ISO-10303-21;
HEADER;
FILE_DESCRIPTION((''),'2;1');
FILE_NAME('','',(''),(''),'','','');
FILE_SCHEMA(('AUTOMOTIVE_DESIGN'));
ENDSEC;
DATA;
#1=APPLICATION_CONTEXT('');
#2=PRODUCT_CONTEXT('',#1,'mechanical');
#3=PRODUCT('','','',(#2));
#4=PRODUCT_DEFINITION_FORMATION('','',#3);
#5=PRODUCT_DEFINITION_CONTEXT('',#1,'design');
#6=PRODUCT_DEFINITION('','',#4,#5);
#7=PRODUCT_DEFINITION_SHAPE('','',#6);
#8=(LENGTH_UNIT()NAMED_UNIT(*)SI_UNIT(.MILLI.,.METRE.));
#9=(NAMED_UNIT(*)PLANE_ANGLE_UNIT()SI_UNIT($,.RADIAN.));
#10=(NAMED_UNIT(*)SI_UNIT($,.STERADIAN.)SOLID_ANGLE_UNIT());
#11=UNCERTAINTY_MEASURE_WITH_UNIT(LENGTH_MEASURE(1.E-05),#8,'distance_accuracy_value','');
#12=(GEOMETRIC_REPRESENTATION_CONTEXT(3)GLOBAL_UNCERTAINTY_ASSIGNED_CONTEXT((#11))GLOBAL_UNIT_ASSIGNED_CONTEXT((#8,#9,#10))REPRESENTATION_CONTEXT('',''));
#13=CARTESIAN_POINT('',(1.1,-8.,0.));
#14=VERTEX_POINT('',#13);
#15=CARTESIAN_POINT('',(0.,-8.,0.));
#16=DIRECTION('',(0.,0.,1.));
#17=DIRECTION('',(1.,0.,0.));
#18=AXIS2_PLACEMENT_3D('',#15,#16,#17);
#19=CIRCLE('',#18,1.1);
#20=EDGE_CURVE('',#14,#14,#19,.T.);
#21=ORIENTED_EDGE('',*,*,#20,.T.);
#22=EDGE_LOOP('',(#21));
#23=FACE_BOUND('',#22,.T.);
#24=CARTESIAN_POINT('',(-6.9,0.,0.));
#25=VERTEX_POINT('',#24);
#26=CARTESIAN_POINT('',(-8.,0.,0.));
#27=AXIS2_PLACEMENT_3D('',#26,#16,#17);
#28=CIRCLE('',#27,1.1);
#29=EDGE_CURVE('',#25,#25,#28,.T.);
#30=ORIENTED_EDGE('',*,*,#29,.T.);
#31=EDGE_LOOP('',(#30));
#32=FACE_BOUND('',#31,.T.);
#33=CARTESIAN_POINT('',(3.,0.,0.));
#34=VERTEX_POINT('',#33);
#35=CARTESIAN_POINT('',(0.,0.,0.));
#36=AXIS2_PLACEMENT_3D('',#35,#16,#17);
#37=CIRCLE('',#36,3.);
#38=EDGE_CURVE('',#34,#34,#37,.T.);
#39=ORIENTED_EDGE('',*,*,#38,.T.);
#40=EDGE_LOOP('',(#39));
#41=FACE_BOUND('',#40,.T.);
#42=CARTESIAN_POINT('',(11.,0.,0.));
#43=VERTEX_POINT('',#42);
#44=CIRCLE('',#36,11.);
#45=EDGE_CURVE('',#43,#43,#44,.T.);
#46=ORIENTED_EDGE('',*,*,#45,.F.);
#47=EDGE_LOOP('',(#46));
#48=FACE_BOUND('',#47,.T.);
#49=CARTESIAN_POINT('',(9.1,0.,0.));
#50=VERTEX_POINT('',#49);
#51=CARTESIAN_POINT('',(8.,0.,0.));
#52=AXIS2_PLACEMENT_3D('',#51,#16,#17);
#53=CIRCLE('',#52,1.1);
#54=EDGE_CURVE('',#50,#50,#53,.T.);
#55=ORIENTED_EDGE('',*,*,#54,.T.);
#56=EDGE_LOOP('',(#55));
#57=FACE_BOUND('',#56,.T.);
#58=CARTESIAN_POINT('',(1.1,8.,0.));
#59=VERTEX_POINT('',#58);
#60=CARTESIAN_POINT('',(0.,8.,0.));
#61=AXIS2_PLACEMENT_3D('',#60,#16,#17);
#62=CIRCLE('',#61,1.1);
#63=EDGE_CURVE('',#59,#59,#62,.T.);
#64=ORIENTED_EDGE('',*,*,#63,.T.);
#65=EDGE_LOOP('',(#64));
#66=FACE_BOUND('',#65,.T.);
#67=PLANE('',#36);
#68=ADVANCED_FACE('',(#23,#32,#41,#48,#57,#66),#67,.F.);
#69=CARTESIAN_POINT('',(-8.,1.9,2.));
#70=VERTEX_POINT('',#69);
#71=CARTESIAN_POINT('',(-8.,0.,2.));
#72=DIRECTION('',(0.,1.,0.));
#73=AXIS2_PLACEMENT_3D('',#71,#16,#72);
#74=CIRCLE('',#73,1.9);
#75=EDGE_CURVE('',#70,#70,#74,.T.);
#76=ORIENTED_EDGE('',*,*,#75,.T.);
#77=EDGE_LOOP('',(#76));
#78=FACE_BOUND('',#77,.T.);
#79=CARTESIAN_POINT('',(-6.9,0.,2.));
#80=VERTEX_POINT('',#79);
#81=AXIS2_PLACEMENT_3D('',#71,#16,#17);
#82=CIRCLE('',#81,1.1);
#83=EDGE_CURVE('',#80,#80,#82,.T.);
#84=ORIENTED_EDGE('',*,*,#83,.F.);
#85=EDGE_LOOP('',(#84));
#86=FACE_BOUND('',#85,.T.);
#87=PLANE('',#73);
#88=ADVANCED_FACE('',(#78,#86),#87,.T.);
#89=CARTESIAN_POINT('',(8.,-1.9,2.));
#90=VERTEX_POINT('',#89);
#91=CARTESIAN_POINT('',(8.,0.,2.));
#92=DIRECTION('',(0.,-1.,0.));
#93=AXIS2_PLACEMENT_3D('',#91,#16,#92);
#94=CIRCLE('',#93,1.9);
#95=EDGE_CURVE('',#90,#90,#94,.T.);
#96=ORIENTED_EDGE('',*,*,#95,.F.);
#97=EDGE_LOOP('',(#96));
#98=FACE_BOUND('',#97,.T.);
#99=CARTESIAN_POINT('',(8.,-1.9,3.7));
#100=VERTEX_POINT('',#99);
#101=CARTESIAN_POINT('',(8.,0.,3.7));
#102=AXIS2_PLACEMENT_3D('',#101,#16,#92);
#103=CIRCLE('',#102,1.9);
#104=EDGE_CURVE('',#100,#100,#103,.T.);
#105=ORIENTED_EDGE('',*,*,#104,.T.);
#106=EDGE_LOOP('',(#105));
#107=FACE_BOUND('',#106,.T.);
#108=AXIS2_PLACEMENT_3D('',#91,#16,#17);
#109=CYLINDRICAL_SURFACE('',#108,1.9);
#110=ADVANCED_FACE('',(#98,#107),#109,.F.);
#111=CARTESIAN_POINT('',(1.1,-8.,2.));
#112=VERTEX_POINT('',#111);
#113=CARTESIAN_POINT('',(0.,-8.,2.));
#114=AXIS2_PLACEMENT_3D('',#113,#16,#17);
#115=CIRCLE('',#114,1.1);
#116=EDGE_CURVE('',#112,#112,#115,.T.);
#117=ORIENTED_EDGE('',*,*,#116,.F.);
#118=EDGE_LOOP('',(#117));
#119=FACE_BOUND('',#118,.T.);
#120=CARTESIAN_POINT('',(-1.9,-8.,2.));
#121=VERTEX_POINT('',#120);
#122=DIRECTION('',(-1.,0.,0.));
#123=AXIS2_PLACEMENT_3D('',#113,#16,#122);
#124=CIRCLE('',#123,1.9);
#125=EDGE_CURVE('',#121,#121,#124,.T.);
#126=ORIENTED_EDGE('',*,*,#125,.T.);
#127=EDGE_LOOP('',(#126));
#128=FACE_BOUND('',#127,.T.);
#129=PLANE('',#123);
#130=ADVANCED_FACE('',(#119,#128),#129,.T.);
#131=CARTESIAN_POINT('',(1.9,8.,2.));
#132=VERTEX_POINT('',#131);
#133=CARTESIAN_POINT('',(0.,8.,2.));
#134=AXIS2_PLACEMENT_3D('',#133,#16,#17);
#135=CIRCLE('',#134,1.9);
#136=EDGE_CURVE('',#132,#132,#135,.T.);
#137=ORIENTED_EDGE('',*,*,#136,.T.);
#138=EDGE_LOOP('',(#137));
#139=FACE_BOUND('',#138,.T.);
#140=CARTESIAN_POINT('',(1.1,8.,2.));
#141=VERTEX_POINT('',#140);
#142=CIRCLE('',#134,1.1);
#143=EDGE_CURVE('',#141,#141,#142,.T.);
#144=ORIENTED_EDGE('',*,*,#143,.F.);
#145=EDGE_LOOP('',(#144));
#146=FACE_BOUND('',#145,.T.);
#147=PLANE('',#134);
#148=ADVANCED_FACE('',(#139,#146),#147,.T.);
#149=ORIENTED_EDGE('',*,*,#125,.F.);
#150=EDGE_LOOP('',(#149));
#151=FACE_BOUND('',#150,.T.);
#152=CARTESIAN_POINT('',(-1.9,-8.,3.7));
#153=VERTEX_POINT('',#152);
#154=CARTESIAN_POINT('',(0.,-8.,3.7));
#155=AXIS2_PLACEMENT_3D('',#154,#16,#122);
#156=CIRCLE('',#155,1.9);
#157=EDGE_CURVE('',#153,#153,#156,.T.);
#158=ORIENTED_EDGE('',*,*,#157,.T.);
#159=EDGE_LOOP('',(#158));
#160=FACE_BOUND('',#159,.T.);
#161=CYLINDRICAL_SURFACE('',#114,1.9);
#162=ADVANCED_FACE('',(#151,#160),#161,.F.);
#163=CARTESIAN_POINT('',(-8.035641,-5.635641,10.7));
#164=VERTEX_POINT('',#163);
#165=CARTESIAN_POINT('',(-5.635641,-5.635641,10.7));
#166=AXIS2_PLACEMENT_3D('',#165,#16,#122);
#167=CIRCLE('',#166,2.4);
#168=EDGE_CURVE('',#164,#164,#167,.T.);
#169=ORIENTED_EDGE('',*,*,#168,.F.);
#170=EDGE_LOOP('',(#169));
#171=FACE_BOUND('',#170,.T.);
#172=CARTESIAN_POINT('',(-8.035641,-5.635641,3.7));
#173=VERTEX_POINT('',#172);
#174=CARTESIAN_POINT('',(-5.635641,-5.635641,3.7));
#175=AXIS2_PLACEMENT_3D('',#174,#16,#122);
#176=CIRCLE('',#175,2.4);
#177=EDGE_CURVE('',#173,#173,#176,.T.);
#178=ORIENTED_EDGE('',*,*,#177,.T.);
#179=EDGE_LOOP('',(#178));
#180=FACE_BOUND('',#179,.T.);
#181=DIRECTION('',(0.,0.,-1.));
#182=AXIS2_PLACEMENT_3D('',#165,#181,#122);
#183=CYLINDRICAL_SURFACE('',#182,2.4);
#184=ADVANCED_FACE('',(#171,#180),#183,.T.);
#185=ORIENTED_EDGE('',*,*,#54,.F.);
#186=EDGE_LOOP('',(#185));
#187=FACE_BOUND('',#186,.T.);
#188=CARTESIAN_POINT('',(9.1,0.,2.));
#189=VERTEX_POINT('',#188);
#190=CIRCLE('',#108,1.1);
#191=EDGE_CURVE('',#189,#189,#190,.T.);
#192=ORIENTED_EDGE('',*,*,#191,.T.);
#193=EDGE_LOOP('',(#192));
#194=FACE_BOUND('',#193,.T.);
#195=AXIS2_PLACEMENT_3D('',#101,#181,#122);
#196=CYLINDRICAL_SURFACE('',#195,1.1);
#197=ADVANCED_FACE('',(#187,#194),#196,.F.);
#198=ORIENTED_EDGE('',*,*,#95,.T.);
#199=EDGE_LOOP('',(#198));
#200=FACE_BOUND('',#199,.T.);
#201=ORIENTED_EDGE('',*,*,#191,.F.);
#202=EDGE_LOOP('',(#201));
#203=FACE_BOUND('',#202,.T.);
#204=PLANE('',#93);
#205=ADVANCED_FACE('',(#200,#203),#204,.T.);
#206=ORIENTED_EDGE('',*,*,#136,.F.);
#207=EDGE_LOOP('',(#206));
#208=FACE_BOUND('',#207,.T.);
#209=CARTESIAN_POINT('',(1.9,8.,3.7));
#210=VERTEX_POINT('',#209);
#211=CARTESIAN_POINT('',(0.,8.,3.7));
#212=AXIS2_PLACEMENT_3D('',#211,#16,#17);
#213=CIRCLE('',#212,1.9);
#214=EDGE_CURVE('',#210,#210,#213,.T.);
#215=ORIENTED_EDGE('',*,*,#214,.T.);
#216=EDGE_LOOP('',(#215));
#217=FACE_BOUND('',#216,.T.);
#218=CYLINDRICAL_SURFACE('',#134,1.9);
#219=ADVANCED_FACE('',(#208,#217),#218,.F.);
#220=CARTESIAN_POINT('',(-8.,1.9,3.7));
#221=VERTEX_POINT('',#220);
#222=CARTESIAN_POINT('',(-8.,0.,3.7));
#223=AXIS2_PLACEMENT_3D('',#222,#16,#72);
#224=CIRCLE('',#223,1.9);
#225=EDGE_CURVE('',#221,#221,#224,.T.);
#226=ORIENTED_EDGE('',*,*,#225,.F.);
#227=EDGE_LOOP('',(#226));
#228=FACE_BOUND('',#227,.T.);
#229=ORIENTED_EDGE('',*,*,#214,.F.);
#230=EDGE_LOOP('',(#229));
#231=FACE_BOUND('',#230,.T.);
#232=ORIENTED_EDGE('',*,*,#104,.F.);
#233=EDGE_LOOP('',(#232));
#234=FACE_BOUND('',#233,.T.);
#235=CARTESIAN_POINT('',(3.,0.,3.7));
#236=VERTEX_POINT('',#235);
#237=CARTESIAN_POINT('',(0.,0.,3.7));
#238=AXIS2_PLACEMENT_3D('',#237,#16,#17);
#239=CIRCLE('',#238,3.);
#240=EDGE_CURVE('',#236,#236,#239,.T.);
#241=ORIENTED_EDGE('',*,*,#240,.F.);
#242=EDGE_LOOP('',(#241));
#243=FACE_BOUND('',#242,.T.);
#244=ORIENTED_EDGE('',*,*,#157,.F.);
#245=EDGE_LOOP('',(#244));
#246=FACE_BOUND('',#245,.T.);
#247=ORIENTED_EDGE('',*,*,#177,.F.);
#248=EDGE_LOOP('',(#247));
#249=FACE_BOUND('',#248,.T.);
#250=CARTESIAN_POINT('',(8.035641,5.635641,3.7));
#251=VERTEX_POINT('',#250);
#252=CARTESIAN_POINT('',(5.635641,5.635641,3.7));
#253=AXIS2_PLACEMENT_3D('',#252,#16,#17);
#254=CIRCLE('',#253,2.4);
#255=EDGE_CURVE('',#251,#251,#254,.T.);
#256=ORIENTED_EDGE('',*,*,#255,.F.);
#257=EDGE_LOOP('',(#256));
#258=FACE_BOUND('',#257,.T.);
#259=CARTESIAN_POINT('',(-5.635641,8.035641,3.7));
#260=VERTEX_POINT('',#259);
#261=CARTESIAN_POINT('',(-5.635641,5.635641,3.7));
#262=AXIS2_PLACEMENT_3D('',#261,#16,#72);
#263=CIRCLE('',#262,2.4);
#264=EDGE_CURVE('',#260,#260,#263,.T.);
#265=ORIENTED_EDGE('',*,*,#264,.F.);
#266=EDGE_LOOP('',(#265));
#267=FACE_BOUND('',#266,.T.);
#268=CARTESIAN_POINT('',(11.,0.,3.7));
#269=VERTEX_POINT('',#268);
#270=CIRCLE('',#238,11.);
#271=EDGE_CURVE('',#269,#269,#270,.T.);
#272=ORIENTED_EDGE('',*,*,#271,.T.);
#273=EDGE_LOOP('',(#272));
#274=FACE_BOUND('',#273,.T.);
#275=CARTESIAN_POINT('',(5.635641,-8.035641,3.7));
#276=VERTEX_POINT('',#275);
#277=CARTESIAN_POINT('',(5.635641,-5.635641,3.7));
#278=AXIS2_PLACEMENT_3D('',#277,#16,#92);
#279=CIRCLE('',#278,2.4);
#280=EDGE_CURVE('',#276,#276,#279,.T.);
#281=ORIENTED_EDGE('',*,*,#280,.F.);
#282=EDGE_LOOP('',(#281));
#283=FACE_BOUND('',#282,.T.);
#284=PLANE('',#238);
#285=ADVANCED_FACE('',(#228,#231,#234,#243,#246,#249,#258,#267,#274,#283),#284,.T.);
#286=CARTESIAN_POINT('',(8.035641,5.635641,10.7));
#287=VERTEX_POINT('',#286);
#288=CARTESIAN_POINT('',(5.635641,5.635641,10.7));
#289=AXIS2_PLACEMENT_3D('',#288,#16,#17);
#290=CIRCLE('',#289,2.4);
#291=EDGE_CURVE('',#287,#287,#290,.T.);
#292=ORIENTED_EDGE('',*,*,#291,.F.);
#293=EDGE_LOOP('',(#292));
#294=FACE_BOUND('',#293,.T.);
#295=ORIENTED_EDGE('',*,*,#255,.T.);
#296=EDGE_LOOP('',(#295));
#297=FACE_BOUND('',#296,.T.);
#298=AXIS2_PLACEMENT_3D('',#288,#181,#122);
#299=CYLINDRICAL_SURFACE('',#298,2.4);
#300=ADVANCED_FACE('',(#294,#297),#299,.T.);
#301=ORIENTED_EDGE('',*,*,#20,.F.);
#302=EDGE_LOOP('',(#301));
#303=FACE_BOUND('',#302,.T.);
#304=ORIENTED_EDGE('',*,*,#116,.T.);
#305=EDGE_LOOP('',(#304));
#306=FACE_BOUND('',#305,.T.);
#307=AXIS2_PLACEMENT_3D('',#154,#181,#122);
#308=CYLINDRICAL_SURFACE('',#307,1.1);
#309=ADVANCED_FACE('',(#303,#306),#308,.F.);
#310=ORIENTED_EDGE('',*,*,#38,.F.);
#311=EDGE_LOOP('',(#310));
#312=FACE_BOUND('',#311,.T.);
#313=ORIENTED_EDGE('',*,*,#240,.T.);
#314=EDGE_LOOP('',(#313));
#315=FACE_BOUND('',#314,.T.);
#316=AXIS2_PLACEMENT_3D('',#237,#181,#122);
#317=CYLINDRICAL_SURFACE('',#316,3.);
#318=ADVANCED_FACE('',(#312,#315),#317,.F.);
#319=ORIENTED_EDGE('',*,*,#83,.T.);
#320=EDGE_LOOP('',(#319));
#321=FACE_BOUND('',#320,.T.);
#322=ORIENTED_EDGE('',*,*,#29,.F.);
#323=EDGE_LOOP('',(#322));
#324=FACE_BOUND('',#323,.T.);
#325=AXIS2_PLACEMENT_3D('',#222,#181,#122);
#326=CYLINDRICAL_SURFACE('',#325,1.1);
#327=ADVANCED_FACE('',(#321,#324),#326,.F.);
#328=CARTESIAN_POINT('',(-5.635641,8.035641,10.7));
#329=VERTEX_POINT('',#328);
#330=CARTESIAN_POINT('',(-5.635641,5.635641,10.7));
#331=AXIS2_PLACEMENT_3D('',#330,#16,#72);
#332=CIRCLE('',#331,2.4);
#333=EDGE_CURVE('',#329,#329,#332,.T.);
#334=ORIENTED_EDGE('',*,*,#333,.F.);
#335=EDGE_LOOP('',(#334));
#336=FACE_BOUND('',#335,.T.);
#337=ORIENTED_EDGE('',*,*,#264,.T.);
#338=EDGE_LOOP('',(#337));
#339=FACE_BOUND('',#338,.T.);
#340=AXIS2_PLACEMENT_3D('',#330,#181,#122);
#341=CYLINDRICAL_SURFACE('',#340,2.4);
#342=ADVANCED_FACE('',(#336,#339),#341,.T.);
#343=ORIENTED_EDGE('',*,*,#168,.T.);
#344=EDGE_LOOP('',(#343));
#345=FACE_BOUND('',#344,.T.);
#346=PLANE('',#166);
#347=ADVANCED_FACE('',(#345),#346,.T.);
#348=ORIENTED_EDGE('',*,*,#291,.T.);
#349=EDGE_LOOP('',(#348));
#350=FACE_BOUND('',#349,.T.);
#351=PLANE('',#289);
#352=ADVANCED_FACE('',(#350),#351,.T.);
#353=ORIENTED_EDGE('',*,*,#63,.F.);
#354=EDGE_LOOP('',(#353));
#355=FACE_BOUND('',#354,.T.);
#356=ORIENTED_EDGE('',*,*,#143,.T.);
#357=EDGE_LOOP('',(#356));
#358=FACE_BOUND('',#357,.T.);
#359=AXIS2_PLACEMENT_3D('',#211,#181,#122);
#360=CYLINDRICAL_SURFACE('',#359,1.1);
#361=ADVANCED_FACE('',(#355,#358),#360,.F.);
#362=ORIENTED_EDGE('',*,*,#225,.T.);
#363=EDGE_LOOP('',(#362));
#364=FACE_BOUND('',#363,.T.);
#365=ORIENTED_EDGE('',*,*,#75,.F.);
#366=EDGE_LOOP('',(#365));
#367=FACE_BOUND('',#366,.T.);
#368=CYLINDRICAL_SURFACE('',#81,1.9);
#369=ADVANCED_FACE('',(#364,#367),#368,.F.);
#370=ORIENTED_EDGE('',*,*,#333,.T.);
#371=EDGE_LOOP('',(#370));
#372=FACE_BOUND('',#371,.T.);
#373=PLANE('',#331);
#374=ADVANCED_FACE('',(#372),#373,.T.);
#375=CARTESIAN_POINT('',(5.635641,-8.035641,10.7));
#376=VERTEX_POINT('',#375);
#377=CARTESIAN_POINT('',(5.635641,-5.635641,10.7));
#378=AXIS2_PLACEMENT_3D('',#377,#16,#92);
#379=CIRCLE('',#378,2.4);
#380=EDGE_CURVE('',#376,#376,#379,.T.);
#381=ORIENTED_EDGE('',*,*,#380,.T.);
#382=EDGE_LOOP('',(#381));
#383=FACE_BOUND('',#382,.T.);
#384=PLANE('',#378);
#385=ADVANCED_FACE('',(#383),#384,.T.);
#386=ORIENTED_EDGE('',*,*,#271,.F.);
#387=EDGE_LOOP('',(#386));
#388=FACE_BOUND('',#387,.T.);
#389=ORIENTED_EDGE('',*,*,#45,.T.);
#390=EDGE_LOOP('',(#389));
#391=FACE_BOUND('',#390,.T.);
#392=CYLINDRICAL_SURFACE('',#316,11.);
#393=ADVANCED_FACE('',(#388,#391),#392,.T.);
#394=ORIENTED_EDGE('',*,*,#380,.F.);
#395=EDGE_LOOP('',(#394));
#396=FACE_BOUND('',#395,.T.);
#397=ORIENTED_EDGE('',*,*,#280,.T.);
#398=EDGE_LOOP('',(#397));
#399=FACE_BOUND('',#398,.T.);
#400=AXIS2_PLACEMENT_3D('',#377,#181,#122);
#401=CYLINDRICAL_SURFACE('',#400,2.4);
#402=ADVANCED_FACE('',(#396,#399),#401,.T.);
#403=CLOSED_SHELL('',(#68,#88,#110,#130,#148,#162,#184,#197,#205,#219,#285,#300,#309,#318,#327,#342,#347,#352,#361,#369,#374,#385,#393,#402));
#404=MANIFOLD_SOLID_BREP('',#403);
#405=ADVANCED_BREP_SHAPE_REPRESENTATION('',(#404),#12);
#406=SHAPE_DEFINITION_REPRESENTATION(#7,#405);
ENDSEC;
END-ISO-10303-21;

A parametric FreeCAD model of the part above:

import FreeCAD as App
import Part
import Sketcher

V = App.Vector
Q = App.Units.Quantity

doc = App.newDocument("Part")
body = doc.addObject("PartDesign::Body", "Body")

# Sketch on XY plane
sketch1 = doc.addObject("Sketcher::SketchObject", "Sketch")
body.addObject(sketch1)
sketch1.AttachmentSupport = (doc.XY_Plane, [""])
sketch1.MapMode = "FlatFace"
sketch1.addGeometry(Part.Circle(V(0, 0, 0), V(0, 0, 1), 11), False)
sketch1.addGeometry(Part.Circle(V(-8, 0, 0), V(0, 0, 1), 1.1), False)
sketch1.addGeometry(Part.Circle(V(0, -8, 0), V(0, 0, 1), 1.1), False)
sketch1.addGeometry(Part.Circle(V(0, 0, 0), V(0, 0, 1), 3), False)
sketch1.addGeometry(Part.Circle(V(8, 0, 0), V(0, 0, 1), 1.1), False)
sketch1.addGeometry(Part.Circle(V(0, 8, 0), V(0, 0, 1), 1.1), False)
sketch1.addConstraint(Sketcher.Constraint("Coincident", 0, 3, -1, 1))
sketch1.addConstraint(Sketcher.Constraint("Coincident", 3, 3, -1, 1))
sketch1.addConstraint(Sketcher.Constraint("Equal", 1, 2))
sketch1.addConstraint(Sketcher.Constraint("Equal", 2, 4))
sketch1.addConstraint(Sketcher.Constraint("Equal", 4, 5))
sketch1.addConstraint(Sketcher.Constraint("Symmetric", 1, 3, 4, 3, -1, 1))
sketch1.addConstraint(Sketcher.Constraint("Symmetric", 2, 3, 5, 3, -1, 1))
sketch1.addConstraint(Sketcher.Constraint("PointOnObject", 1, 3, -1))
sketch1.addConstraint(Sketcher.Constraint("PointOnObject", 2, 3, -2))
sketch1.addConstraint(Sketcher.Constraint("Diameter", 0, Q("22 mm")))
sketch1.addConstraint(Sketcher.Constraint("Diameter", 3, Q("6 mm")))
sketch1.addConstraint(Sketcher.Constraint("Diameter", 1, Q("2.2 mm")))
sketch1.addConstraint(Sketcher.Constraint("DistanceX", 1, 3, -1, 1, Q("8 mm")))
sketch1.addConstraint(Sketcher.Constraint("DistanceY", 2, 3, -1, 1, Q("8 mm")))
pad1 = doc.addObject("PartDesign::Pad", "Pad")
body.addObject(pad1)
pad1.Profile = sketch1
pad1.Length = 3.7

# Sketch on XY plane
sketch2 = doc.addObject("Sketcher::SketchObject", "Sketch001")
body.addObject(sketch2)
sketch2.AttachmentSupport = (doc.XY_Plane, [""])
sketch2.MapMode = "FlatFace"
sketch2.AttachmentOffset = App.Placement(V(0, 0, 3.7), App.Rotation())
sketch2.addGeometry(Part.Circle(V(0, 8, 0), V(0, 0, 1), 1.9), False)
sketch2.addConstraint(Sketcher.Constraint("PointOnObject", 0, 3, -2))
sketch2.addConstraint(Sketcher.Constraint("Diameter", 0, Q("3.8 mm")))
sketch2.addConstraint(Sketcher.Constraint("DistanceY", -1, 1, 0, 3, Q("8 mm")))
pocket1 = doc.addObject("PartDesign::Pocket", "Pocket")
body.addObject(pocket1)
pocket1.Profile = sketch2
pocket1.Length = 1.7
doc.recompute()

polarpattern = doc.addObject("PartDesign::PolarPattern", "PolarPattern")
body.addObject(polarpattern)
polarpattern.Originals = [pocket1]
polarpattern.Axis = (doc.Z_Axis, [""])
polarpattern.Angle = 360
polarpattern.Occurrences = 4
body.Tip = polarpattern

# Sketch on XY plane
sketch3 = doc.addObject("Sketcher::SketchObject", "Sketch002")
body.addObject(sketch3)
sketch3.AttachmentSupport = (doc.XY_Plane, [""])
sketch3.MapMode = "FlatFace"
sketch3.AttachmentOffset = App.Placement(V(0, 0, 3.7), App.Rotation())
sketch3.addGeometry(Part.Circle(V(5.6, 5.6, 0), V(0, 0, 1), 2.4), False)
sketch3.addConstraint(Sketcher.Constraint("Diameter", 0, Q("4.8 mm")))
sketch3.addConstraint(Sketcher.Constraint("DistanceX", -1, 1, 0, 3, Q("5.635641 mm")))
sketch3.addConstraint(Sketcher.Constraint("DistanceY", -1, 1, 0, 3, Q("5.635641 mm")))
pad2 = doc.addObject("PartDesign::Pad", "Pad001")
body.addObject(pad2)
pad2.Profile = sketch3
pad2.Length = 7
doc.recompute()

polarpattern2 = doc.addObject("PartDesign::PolarPattern", "PolarPattern001")
body.addObject(polarpattern2)
polarpattern2.Originals = [pad2]
polarpattern2.Axis = (doc.Z_Axis, [""])
polarpattern2.Angle = 360
polarpattern2.Occurrences = 4
body.Tip = polarpattern2

doc.recompute()
